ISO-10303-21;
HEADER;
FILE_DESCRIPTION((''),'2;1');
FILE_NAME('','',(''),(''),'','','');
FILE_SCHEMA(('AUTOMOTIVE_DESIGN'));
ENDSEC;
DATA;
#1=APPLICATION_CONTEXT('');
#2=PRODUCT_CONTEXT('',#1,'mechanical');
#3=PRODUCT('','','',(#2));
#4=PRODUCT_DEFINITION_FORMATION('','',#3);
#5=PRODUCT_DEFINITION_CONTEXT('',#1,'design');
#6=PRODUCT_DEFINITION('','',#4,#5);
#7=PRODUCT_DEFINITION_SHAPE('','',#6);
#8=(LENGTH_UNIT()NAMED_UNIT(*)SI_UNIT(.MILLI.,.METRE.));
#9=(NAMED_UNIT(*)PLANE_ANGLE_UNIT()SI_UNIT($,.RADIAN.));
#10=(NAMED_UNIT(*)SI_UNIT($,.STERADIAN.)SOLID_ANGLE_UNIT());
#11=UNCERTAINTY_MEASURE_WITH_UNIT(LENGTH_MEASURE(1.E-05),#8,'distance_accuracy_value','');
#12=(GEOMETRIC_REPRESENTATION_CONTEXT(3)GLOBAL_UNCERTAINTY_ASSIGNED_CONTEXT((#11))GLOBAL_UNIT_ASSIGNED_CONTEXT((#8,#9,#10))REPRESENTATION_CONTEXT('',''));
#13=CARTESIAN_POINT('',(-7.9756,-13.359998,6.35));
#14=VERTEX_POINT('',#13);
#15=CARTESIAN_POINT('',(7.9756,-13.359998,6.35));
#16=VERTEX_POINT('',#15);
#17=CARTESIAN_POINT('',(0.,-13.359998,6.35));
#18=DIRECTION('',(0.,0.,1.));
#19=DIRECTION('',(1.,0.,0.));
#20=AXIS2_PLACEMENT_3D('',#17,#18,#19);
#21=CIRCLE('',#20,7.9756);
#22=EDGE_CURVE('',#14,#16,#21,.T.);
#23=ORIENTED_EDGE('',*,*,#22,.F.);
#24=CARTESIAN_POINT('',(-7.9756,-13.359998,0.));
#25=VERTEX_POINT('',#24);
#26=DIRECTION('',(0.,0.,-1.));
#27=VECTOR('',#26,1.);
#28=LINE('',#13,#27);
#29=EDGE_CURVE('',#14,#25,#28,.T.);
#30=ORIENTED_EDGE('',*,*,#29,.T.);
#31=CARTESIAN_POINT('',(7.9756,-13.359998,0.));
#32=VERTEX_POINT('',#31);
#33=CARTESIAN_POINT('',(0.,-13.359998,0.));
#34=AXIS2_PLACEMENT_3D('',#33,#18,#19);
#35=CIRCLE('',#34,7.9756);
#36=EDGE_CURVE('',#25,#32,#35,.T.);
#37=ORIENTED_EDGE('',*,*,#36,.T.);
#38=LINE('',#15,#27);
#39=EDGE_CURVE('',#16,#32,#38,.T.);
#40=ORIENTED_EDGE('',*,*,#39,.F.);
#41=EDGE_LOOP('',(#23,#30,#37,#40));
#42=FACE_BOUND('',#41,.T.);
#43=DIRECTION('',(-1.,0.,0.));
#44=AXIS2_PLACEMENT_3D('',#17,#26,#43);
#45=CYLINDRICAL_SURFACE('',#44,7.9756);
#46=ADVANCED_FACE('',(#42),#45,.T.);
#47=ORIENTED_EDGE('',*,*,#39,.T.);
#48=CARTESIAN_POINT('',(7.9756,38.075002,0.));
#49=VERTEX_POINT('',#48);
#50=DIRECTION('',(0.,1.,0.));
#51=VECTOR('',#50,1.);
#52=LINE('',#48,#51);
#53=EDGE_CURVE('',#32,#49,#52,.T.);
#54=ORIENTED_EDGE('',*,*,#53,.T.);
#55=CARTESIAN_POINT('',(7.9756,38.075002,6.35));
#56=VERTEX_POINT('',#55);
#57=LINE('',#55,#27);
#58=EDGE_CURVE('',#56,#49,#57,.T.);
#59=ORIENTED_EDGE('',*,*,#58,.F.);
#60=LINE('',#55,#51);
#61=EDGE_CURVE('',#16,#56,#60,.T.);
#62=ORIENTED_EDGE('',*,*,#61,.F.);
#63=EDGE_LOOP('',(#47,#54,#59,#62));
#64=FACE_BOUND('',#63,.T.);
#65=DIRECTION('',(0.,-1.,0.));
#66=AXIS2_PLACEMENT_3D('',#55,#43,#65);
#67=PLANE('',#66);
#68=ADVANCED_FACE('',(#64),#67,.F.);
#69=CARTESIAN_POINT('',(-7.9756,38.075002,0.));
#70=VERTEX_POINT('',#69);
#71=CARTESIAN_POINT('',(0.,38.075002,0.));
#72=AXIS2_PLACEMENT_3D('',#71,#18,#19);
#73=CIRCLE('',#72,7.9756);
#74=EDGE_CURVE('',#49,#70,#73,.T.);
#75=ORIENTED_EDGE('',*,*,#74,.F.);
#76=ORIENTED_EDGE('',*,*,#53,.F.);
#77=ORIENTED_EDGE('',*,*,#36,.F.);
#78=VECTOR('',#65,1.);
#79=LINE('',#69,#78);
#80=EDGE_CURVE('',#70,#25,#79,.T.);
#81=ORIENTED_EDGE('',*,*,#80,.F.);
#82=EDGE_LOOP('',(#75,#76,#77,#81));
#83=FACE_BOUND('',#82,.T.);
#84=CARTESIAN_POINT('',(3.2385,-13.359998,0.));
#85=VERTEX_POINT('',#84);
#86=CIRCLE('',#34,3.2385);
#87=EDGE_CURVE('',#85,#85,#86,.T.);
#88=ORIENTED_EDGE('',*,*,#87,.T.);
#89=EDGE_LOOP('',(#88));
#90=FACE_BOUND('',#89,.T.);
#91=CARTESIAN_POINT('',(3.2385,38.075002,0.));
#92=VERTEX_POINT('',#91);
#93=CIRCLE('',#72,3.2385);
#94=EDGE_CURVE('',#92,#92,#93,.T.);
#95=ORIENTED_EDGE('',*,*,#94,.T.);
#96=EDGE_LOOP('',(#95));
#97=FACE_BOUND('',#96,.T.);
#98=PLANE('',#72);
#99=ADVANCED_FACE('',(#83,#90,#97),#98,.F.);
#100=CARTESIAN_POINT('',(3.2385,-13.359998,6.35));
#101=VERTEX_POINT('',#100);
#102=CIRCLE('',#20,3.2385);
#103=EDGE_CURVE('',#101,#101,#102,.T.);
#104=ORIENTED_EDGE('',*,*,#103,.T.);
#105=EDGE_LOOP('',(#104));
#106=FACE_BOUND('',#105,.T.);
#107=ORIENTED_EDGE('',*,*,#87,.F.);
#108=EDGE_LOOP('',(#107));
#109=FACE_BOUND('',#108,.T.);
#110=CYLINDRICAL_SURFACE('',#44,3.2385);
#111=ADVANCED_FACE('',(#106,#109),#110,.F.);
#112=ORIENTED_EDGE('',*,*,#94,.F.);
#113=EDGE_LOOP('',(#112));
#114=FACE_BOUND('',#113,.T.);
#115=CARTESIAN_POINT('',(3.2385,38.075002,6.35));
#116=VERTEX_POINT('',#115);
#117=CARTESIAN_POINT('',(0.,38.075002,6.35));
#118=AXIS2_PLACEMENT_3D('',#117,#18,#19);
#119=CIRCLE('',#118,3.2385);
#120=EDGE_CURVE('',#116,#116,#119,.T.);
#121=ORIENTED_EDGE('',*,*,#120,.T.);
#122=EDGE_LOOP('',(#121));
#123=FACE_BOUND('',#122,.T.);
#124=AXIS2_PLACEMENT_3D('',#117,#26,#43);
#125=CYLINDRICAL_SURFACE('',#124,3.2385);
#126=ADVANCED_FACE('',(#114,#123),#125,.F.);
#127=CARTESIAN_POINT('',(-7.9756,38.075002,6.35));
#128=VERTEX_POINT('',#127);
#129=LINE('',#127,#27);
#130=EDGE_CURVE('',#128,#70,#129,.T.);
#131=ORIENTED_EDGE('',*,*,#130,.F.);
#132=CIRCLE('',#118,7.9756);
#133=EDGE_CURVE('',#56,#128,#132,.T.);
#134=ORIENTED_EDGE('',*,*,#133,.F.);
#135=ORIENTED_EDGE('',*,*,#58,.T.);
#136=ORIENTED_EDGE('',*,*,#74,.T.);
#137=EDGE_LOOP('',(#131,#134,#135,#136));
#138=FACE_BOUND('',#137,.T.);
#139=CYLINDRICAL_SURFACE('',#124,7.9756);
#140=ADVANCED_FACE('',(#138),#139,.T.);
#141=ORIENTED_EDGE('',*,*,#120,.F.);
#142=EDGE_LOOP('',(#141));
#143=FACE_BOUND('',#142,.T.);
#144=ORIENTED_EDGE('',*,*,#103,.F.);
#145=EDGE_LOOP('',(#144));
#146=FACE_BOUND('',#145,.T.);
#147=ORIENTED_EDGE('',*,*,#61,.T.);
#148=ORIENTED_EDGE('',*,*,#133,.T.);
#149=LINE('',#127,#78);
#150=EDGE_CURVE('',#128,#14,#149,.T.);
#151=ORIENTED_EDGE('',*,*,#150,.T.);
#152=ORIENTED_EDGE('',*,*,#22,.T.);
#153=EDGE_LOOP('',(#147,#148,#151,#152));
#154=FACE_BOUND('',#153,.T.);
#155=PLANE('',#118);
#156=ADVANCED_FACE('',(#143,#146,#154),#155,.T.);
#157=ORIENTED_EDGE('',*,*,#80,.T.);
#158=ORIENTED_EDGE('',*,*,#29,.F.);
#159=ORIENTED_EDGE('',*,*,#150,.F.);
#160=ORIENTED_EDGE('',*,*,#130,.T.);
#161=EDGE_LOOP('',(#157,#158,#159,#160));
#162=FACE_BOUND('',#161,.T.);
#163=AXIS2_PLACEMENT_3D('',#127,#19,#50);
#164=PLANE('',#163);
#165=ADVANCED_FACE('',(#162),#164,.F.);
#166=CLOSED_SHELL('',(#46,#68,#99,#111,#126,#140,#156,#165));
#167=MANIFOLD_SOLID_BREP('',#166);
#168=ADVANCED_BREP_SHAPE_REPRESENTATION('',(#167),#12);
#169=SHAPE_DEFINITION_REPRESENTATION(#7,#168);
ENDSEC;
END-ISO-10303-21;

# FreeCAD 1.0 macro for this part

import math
import FreeCAD as App
import Part
import Sketcher

V = App.Vector
Q = App.Units.Quantity

doc = App.newDocument("Part")
params = doc.addObject("Spreadsheet::Sheet", "Params")
for row, (alias, value) in enumerate([
    ("sketch1_diameter", "0.255 in"),
    ("sketch1_radius", "0.314 in"),
    ("sketch1_height", "2.025 in"),
    ("pad1_length", "0.25 in"),
], start=1):
    params.set(f"A{row}", alias)
    params.set(f"B{row}", "=" + value)
    params.setAlias(f"B{row}", alias)

body = doc.addObject("PartDesign::Body", "Body")

# Sketch on XY plane
sketch1 = doc.addObject("Sketcher::SketchObject", "Sketch")
body.addObject(sketch1)
sketch1.AttachmentSupport = (doc.XY_Plane, [""])
sketch1.MapMode = "FlatFace"
sketch1.addGeometry([
    Part.LineSegment(V(8, -13.4, 0), V(8, 38.1, 0)),  # 0
    Part.ArcOfCircle(Part.Circle(V(0, 38.1, 0), V(0, 0, 1), 8), math.radians(0), math.radians(180)),  # 1
    Part.LineSegment(V(-8, 38.1, 0), V(-8, -13.4, 0)),  # 2
    Part.ArcOfCircle(Part.Circle(V(0, -13.4, 0), V(0, 0, 1), 8), math.radians(180), math.radians(360)),  # 3
    Part.Circle(V(0, -13.4, 0), V(0, 0, 1), 3.2),  # 4
    Part.Circle(V(0, 38.1, 0), V(0, 0, 1), 3.2),  # 5
], False)
sketch1.addConstraint([
    Sketcher.Constraint("Tangent", 0, 2, 1, 1),
    Sketcher.Constraint("Tangent", 1, 2, 2, 1),
    Sketcher.Constraint("Tangent", 2, 2, 3, 1),
    Sketcher.Constraint("Tangent", 3, 2, 0, 1),
    Sketcher.Constraint("Vertical", 0),
    Sketcher.Constraint("Vertical", 2),
    Sketcher.Constraint("Coincident", 4, 3, 3, 3),
    Sketcher.Constraint("Coincident", 5, 3, 1, 3),
    Sketcher.Constraint("Equal", 4, 5),
    Sketcher.Constraint("PointOnObject", 1, 3, -2),
    Sketcher.Constraint("Diameter", 4, Q("0.255 in")),
    Sketcher.Constraint("Radius", 1, Q("0.314 in")),
    Sketcher.Constraint("DistanceY", 0, 1, 0, 2, Q("2.025 in")),
    Sketcher.Constraint("DistanceY", -1, 1, 1, 3, Q("38.075002 mm")),
])
sketch1.setExpression("Constraints[10]", "Params.sketch1_diameter")
sketch1.setExpression("Constraints[11]", "Params.sketch1_radius")
sketch1.setExpression("Constraints[12]", "Params.sketch1_height")
pad1 = doc.addObject("PartDesign::Pad", "Pad")
body.addObject(pad1)
pad1.Profile = sketch1
pad1.setExpression("Length", "Params.pad1_length")

doc.recompute()
